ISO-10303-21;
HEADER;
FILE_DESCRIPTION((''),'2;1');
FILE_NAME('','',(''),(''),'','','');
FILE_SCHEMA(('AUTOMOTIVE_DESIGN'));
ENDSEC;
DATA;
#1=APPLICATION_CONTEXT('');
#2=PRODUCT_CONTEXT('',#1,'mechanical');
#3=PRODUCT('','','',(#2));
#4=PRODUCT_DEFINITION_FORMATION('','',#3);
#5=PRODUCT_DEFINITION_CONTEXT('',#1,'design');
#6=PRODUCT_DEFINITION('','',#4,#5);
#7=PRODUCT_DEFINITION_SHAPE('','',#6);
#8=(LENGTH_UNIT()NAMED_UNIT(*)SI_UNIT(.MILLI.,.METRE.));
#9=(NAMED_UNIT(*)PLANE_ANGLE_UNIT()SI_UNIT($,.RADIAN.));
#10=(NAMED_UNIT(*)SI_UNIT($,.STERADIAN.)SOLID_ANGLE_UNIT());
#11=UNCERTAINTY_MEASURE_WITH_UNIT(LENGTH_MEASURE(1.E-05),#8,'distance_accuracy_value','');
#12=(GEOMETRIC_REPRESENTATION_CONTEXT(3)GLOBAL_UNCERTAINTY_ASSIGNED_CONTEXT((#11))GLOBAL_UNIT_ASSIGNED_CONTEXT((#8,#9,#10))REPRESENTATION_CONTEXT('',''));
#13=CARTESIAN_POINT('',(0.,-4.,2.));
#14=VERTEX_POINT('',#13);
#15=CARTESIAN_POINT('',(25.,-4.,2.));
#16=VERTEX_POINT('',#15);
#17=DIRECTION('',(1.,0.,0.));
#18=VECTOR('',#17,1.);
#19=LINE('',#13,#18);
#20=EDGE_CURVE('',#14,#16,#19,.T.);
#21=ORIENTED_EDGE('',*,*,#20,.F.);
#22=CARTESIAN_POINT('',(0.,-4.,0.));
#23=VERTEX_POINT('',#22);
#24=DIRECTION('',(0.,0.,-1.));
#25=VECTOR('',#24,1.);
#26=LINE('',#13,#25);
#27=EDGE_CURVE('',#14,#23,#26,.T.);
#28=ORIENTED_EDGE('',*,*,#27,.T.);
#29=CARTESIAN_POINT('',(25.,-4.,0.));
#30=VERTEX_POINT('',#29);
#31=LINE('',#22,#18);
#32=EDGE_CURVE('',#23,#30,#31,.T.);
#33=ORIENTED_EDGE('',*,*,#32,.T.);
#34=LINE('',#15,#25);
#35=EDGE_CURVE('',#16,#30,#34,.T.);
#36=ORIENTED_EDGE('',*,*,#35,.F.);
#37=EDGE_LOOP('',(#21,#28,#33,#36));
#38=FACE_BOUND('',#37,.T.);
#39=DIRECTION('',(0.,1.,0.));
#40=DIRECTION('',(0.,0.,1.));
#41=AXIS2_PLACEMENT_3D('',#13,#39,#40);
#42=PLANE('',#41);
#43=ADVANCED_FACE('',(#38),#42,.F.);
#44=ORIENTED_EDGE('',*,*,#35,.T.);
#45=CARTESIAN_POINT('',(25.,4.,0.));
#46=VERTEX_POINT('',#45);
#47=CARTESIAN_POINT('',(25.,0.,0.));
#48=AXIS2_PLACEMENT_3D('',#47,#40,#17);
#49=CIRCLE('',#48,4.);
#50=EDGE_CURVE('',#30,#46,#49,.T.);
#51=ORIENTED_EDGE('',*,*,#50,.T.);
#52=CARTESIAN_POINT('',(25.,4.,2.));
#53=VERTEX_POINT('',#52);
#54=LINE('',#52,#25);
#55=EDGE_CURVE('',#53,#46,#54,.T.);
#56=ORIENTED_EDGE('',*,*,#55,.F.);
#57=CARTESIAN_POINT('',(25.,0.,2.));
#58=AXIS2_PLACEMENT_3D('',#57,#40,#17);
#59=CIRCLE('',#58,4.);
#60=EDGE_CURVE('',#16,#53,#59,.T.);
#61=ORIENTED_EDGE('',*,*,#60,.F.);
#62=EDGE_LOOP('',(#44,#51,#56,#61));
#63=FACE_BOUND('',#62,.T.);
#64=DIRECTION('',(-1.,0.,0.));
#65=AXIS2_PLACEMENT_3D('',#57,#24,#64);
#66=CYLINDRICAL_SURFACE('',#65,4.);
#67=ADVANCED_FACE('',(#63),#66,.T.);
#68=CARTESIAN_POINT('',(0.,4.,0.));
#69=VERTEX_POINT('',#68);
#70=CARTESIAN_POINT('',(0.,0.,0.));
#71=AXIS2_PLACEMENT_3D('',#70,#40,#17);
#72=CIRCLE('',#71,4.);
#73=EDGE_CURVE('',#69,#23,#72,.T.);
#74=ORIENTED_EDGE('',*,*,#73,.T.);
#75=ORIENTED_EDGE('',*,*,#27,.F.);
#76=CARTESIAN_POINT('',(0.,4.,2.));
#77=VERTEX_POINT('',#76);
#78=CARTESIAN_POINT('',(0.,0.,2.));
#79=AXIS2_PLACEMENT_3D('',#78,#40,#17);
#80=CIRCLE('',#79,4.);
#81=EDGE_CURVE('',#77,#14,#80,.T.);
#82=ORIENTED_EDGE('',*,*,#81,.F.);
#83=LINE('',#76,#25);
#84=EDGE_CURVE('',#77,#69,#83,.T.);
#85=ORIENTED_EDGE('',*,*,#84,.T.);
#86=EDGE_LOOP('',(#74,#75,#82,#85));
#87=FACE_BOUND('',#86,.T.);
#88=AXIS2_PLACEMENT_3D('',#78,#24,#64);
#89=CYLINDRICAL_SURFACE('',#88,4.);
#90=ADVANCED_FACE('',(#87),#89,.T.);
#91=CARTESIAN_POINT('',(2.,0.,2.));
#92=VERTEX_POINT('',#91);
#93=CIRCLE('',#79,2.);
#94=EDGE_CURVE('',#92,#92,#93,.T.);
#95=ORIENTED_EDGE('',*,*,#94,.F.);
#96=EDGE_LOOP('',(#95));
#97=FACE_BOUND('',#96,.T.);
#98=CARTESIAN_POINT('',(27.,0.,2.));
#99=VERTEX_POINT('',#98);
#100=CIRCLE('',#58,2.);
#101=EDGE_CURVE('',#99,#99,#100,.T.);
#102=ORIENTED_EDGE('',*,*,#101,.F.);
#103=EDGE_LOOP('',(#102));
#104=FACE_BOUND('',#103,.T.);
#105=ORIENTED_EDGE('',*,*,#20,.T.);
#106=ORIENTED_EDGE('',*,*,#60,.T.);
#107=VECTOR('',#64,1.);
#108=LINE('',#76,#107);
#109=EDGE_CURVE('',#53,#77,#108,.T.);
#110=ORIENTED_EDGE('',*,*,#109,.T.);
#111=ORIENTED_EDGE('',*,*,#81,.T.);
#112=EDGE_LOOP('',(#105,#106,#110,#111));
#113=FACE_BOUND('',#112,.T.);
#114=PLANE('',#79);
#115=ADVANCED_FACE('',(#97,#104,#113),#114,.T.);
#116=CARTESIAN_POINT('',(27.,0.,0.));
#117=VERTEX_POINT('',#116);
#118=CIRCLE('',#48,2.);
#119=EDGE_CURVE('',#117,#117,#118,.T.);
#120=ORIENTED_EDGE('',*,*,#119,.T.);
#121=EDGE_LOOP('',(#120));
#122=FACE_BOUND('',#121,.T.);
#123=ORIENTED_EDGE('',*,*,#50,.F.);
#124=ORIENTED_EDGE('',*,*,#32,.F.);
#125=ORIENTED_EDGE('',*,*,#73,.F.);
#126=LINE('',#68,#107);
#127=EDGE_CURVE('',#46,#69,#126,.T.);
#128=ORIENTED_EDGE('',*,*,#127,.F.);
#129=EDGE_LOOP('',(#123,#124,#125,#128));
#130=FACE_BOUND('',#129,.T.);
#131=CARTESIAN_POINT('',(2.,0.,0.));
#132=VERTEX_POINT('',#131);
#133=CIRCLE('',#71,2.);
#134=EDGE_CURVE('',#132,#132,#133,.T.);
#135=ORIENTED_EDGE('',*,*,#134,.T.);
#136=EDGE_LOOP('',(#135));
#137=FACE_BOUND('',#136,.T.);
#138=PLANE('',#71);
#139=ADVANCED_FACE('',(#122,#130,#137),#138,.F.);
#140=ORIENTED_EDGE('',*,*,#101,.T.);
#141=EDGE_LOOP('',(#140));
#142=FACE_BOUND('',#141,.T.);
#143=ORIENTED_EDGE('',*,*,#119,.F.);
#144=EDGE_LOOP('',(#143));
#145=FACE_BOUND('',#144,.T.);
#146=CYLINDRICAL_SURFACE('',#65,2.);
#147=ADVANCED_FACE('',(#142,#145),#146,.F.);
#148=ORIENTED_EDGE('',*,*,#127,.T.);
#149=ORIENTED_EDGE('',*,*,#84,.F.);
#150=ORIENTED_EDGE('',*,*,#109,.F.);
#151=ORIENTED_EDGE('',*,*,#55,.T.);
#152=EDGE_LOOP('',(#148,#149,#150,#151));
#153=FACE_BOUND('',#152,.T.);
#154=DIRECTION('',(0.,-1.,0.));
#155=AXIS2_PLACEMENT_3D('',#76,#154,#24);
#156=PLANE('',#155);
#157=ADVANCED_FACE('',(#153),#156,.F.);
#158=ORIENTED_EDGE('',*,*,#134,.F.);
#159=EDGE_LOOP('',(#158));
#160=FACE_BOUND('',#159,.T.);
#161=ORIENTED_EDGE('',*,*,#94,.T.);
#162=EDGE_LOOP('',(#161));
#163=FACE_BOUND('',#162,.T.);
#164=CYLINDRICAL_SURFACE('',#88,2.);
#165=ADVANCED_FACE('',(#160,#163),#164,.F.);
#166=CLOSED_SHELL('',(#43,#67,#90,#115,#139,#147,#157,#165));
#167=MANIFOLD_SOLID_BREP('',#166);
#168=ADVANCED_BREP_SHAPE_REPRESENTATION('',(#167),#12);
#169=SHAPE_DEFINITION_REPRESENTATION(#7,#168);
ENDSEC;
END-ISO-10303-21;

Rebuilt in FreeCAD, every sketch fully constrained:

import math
import FreeCAD as App
import Part
import Sketcher
from FreeCAD import Vector
Q = App.Units.Quantity

doc = App.newDocument("Part")
params = doc.addObject("Spreadsheet::Sheet", "Params")
for row, (alias, value) in enumerate([
    ("sketch1_diameter", "4 mm"),
    ("sketch1_radius", "4 mm"),
    ("sketch1_width", "25 mm"),
    ("pad1_length", "2 mm"),
], start=1):
    params.set(f"A{row}", alias)
    params.set(f"B{row}", "=" + value)
    params.setAlias(f"B{row}", alias)

body = doc.addObject("PartDesign::Body", "Body")

# Sketch on XY plane
sketch1 = body.newObject("Sketcher::SketchObject", "Sketch")
sketch1.AttachmentSupport = (doc.getObject("XY_Plane"), [""])
sketch1.MapMode = "FlatFace"
sketch1.addGeometry(Part.LineSegment(Vector(25, 4, 0), Vector(0, 4, 0)), False)
sketch1.addGeometry(Part.ArcOfCircle(Part.Circle(Vector(0, 0, 0), Vector(0, 0, 1), 4), math.radians(90), math.radians(270)), False)
sketch1.addGeometry(Part.LineSegment(Vector(0, -4, 0), Vector(25, -4, 0)), False)
sketch1.addGeometry(Part.ArcOfCircle(Part.Circle(Vector(25, 0, 0), Vector(0, 0, 1), 4), math.radians(-90), math.radians(90)), False)
sketch1.addGeometry(Part.Circle(Vector(25, 0, 0), Vector(0, 0, 1), 2), False)
sketch1.addGeometry(Part.Circle(Vector(0, 0, 0), Vector(0, 0, 1), 2), False)
sketch1.addConstraint(Sketcher.Constraint("Tangent", 0, 2, 1, 1))
sketch1.addConstraint(Sketcher.Constraint("Tangent", 1, 2, 2, 1))
sketch1.addConstraint(Sketcher.Constraint("Tangent", 2, 2, 3, 1))
sketch1.addConstraint(Sketcher.Constraint("Tangent", 3, 2, 0, 1))
sketch1.addConstraint(Sketcher.Constraint("Horizontal", 0))
sketch1.addConstraint(Sketcher.Constraint("Horizontal", 2))
sketch1.addConstraint(Sketcher.Constraint("Coincident", 1, 3, -1, 1))
sketch1.addConstraint(Sketcher.Constraint("Coincident", 5, 3, -1, 1))
sketch1.addConstraint(Sketcher.Constraint("Coincident", 4, 3, 3, 3))
sketch1.addConstraint(Sketcher.Constraint("Equal", 4, 5))
sketch1.addConstraint(Sketcher.Constraint("Diameter", 4, Q("4 mm")))
sketch1.addConstraint(Sketcher.Constraint("Radius", 1, Q("4 mm")))
sketch1.addConstraint(Sketcher.Constraint("DistanceX", 0, 2, 0, 1, Q("25 mm")))
sketch1.setExpression("Constraints[10]", "Params.sketch1_diameter")
sketch1.setExpression("Constraints[11]", "Params.sketch1_radius")
sketch1.setExpression("Constraints[12]", "Params.sketch1_width")
pad1 = body.newObject("PartDesign::Pad", "Pad")
pad1.Profile = sketch1
pad1.setExpression("Length", "Params.pad1_length")

doc.recompute()
